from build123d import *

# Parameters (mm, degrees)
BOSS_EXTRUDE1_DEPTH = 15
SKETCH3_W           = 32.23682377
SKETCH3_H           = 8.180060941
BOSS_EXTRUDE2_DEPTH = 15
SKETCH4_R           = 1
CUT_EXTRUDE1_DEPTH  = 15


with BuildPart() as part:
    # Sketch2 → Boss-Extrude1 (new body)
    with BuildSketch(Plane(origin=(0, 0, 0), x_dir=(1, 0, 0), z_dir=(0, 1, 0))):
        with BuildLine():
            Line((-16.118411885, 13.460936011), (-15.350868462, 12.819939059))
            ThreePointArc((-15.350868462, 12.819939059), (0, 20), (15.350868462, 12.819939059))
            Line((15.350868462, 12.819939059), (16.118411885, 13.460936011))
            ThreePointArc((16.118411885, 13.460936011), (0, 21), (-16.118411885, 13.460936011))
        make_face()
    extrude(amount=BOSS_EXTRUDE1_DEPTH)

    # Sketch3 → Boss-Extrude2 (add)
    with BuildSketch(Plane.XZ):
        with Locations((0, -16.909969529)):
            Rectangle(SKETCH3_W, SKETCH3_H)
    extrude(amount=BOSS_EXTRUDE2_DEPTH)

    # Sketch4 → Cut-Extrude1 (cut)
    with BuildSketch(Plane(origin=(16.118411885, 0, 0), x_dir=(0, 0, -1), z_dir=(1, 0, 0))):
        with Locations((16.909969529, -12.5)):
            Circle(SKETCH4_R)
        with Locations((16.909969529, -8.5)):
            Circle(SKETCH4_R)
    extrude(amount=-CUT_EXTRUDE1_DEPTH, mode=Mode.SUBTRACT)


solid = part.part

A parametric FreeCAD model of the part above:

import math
import FreeCAD as App
import Part
import Sketcher
Q = App.Units.Quantity


def add_polygon(sketch, points):
    """Adds a closed chain of lines whose ends are joined by coincident constraints."""
    first, n = sketch.GeometryCount, len(points)
    for a, b in zip(points, points[1:] + points[:1]):
        sketch.addGeometry(Part.LineSegment(App.Vector(*a, 0), App.Vector(*b, 0)), False)
    for i in range(n):
        sketch.addConstraint(Sketcher.Constraint("Coincident", first + i, 2, first + (i + 1) % n, 1))

doc = App.newDocument("Part")
body = doc.addObject("PartDesign::Body", "Body")

# Sketch on XZ plane
sketch1 = body.newObject("Sketcher::SketchObject", "Sketch")
sketch1.AttachmentSupport = (doc.getObject("XZ_Plane"), [""])
sketch1.MapMode = "FlatFace"
sketch1.addGeometry([
    Part.LineSegment(App.Vector(-16.1, -13.5, 0), App.Vector(-15.4, -12.8, 0)),
    Part.ArcOfCircle(Part.Circle(App.Vector(0, 0, 0), App.Vector(0, 0, 1), 20), math.radians(-140), math.radians(-40)),
    Part.LineSegment(App.Vector(15.4, -12.8, 0), App.Vector(16.1, -13.5, 0)),
    Part.ArcOfCircle(Part.Circle(App.Vector(0, 0, 0), App.Vector(0, 0, 1), 21), math.radians(-140), math.radians(-40)),
], False)
sketch1.addConstraint([
    Sketcher.Constraint("Coincident", 0, 2, 1, 1),
    Sketcher.Constraint("Coincident", 1, 2, 2, 1),
    Sketcher.Constraint("Coincident", 2, 2, 3, 2),
    Sketcher.Constraint("Coincident", 3, 1, 0, 1),
    Sketcher.Constraint("Coincident", 1, 3, -1, 1),
    Sketcher.Constraint("Coincident", 3, 3, -1, 1),
    Sketcher.Constraint("Horizontal", 0, 2, 1, 2),
    Sketcher.Constraint("Horizontal", 2, 2, 3, 1),
    Sketcher.Constraint("Radius", 1, Q("20 mm")),
    Sketcher.Constraint("Radius", 3, Q("21 mm")),
    Sketcher.Constraint("DistanceX", 0, 2, -1, 1, Q("15.350868 mm")),
    Sketcher.Constraint("DistanceX", -1, 1, 2, 2, Q("16.118412 mm")),
])
pad1 = body.newObject("PartDesign::Pad", "Pad")
pad1.Profile = sketch1
pad1.Length = 15
pad1.Reversed = True

# Sketch on XZ plane
sketch2 = body.newObject("Sketcher::SketchObject", "Sketch001")
sketch2.AttachmentSupport = (doc.getObject("XZ_Plane"), [""])
sketch2.MapMode = "FlatFace"
add_polygon(sketch2, [(-16, -13), (-16, -21), (16, -21), (16, -13)])  # lines 0-3
sketch2.addConstraint([
    Sketcher.Constraint("Vertical", 0),
    Sketcher.Constraint("Horizontal", 1),
    Sketcher.Constraint("Vertical", 2),
    Sketcher.Constraint("Horizontal", 3),
    Sketcher.Constraint("DistanceY", 0, 2, -1, 1, Q("21 mm")),
    Sketcher.Constraint("DistanceY", 0, 2, 0, 1, Q("8.180061 mm")),
    Sketcher.Constraint("DistanceX", 1, 1, 1, 2, Q("32.236824 mm")),
    Sketcher.Constraint("DistanceX", 0, 2, -1, 1, Q("16.118412 mm")),
])
pad2 = body.newObject("PartDesign::Pad", "Pad001")
pad2.Profile = sketch2
pad2.Length = 15

# Sketch on YZ plane
sketch3 = body.newObject("Sketcher::SketchObject", "Sketch002")
sketch3.AttachmentSupport = (doc.getObject("YZ_Plane"), [""])
sketch3.MapMode = "FlatFace"
sketch3.AttachmentOffset = App.Placement(App.Vector(0, 0, 16.118412), App.Rotation())
sketch3.addGeometry([
    Part.Circle(App.Vector(-12.5, -16.9, 0), App.Vector(0, 0, 1), 1),
    Part.Circle(App.Vector(-8.5, -16.9, 0), App.Vector(0, 0, 1), 1),
], False)
sketch3.addConstraint([
    Sketcher.Constraint("Equal", 0, 1),
    Sketcher.Constraint("Horizontal", 0, 3, 1, 3),
    Sketcher.Constraint("Diameter", 0, Q("2 mm")),
    Sketcher.Constraint("DistanceX", 0, 3, 1, 3, Q("4 mm")),
    Sketcher.Constraint("DistanceX", 0, 3, -1, 1, Q("12.5 mm")),
    Sketcher.Constraint("DistanceY", 0, 3, -1, 1, Q("16.90997 mm")),
])
pocket1 = body.newObject("PartDesign::Pocket", "Pocket")
pocket1.Profile = sketch3
pocket1.Length = 15

doc.recompute()
